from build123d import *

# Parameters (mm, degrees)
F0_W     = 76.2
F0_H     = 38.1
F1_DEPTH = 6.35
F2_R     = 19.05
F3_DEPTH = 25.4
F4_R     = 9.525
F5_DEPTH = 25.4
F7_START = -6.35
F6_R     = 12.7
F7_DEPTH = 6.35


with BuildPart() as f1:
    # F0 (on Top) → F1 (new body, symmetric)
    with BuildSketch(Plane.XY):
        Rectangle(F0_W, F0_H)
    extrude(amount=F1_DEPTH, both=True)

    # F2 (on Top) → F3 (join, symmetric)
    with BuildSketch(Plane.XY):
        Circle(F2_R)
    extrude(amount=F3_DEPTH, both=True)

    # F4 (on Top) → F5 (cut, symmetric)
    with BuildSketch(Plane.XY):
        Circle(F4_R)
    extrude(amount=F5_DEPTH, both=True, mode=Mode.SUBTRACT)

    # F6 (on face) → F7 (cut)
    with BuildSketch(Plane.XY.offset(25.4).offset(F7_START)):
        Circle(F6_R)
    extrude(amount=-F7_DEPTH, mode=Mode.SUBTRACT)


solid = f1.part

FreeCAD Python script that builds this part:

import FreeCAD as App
import Part
import Sketcher
Q = App.Units.Quantity

doc = App.newDocument("Part")
body = doc.addObject("PartDesign::Body", "Body")

# Sketch on XY plane
sketch1 = body.newObject("Sketcher::SketchObject", "Sketch")
sketch1.AttachmentSupport = (doc.getObject("XY_Plane"), [""])
sketch1.MapMode = "FlatFace"
sketch1.addGeometry(Part.LineSegment(App.Vector(-38, 19, 0), App.Vector(-38, -19, 0)), False)
sketch1.addGeometry(Part.LineSegment(App.Vector(-38, -19, 0), App.Vector(38, -19, 0)), False)
sketch1.addGeometry(Part.LineSegment(App.Vector(38, -19, 0), App.Vector(38, 19, 0)), False)
sketch1.addGeometry(Part.LineSegment(App.Vector(38, 19, 0), App.Vector(-38, 19, 0)), False)
sketch1.addConstraint(Sketcher.Constraint("Coincident", 0, 2, 1, 1))
sketch1.addConstraint(Sketcher.Constraint("Coincident", 1, 2, 2, 1))
sketch1.addConstraint(Sketcher.Constraint("Coincident", 2, 2, 3, 1))
sketch1.addConstraint(Sketcher.Constraint("Coincident", 3, 2, 0, 1))
sketch1.addConstraint(Sketcher.Constraint("Vertical", 0))
sketch1.addConstraint(Sketcher.Constraint("Horizontal", 1))
sketch1.addConstraint(Sketcher.Constraint("Vertical", 2))
sketch1.addConstraint(Sketcher.Constraint("Horizontal", 3))
sketch1.addConstraint(Sketcher.Constraint("Symmetric", 0, 2, 2, 2, -1, 1))
sketch1.addConstraint(Sketcher.Constraint("DistanceX", 1, 1, 1, 2, Q("3 in")))
sketch1.addConstraint(Sketcher.Constraint("DistanceY", 0, 2, 0, 1, Q("1.5 in")))
pad1 = body.newObject("PartDesign::Pad", "Pad")
pad1.Profile = sketch1
pad1.Length = Q("0.5 in")
pad1.Midplane = True

# Sketch on XY plane
sketch2 = body.newObject("Sketcher::SketchObject", "Sketch001")
sketch2.AttachmentSupport = (doc.getObject("XY_Plane"), [""])
sketch2.MapMode = "FlatFace"
sketch2.addGeometry(Part.Circle(App.Vector(0, 0, 0), App.Vector(0, 0, 1), 19), False)
sketch2.addConstraint(Sketcher.Constraint("Coincident", 0, 3, -1, 1))
sketch2.addConstraint(Sketcher.Constraint("Diameter", 0, Q("1.5 in")))
pad2 = body.newObject("PartDesign::Pad", "Pad001")
pad2.Profile = sketch2
pad2.Length = Q("2 in")
pad2.Midplane = True

# Sketch on XY plane
sketch3 = body.newObject("Sketcher::SketchObject", "Sketch002")
sketch3.AttachmentSupport = (doc.getObject("XY_Plane"), [""])
sketch3.MapMode = "FlatFace"
sketch3.addGeometry(Part.Circle(App.Vector(0, 0, 0), App.Vector(0, 0, 1), 10), False)
sketch3.addConstraint(Sketcher.Constraint("Coincident", 0, 3, -1, 1))
sketch3.addConstraint(Sketcher.Constraint("Diameter", 0, Q("0.75 in")))
pocket1 = body.newObject("PartDesign::Pocket", "Pocket")
pocket1.Profile = sketch3
pocket1.Length = Q("2 in")
pocket1.Midplane = True

# Sketch on XY plane
sketch4 = body.newObject("Sketcher::SketchObject", "Sketch003")
sketch4.AttachmentSupport = (doc.getObject("XY_Plane"), [""])
sketch4.MapMode = "FlatFace"
sketch4.AttachmentOffset = App.Placement(App.Vector(0, 0, 0.75 * 25.4), App.Rotation())
sketch4.addGeometry(Part.Circle(App.Vector(0, 0, 0), App.Vector(0, 0, 1), 13), False)
sketch4.addConstraint(Sketcher.Constraint("Coincident", 0, 3, -1, 1))
sketch4.addConstraint(Sketcher.Constraint("Diameter", 0, Q("1 in")))
pocket2 = body.newObject("PartDesign::Pocket", "Pocket001")
pocket2.Profile = sketch4
pocket2.Length = Q("0.25 in")

doc.recompute()
